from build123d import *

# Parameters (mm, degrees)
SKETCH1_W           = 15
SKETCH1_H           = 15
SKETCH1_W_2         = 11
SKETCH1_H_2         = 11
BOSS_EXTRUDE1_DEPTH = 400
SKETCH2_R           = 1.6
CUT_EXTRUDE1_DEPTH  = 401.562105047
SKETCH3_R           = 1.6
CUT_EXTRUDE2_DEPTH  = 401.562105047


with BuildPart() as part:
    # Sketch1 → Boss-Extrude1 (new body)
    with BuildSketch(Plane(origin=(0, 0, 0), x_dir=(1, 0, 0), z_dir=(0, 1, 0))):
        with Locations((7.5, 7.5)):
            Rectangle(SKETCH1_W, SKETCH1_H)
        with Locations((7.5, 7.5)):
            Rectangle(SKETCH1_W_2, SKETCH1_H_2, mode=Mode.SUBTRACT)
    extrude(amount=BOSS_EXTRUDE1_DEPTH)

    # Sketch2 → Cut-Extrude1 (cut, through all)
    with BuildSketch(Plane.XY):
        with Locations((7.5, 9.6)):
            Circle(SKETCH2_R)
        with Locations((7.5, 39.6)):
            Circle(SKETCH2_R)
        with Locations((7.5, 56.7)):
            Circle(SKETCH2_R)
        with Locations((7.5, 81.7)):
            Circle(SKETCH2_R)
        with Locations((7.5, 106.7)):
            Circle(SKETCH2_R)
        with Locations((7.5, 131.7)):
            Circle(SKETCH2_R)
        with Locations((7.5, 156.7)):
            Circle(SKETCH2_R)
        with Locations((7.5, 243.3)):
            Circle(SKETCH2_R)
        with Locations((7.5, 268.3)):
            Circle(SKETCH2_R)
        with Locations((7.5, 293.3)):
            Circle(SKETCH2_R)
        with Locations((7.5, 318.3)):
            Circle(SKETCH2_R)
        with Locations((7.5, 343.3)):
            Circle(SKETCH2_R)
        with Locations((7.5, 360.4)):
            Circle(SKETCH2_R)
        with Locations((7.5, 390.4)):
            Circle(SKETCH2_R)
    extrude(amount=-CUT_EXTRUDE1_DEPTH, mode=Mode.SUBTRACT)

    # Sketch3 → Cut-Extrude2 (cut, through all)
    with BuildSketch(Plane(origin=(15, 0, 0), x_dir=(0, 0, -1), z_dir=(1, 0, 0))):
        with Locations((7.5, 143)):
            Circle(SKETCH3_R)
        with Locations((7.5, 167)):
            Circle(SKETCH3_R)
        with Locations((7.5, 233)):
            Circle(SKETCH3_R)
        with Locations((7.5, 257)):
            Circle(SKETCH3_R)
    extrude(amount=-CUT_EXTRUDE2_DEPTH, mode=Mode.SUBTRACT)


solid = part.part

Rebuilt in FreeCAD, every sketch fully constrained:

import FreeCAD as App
import Part
import Sketcher
Q = App.Units.Quantity

doc = App.newDocument("Part")
body = doc.addObject("PartDesign::Body", "Body")

# Sketch on XZ plane
sketch1 = doc.addObject("Sketcher::SketchObject", "Sketch")
body.addObject(sketch1)
sketch1.AttachmentSupport = (doc.XZ_Plane, [""])
sketch1.MapMode = "FlatFace"
sketch1.addGeometry(Part.LineSegment(App.Vector(0, -15, 0), App.Vector(0, 0, 0)), False)
sketch1.addGeometry(Part.LineSegment(App.Vector(0, 0, 0), App.Vector(15, 0, 0)), False)
sketch1.addGeometry(Part.LineSegment(App.Vector(15, 0, 0), App.Vector(15, -15, 0)), False)
sketch1.addGeometry(Part.LineSegment(App.Vector(15, -15, 0), App.Vector(0, -15, 0)), False)
sketch1.addGeometry(Part.LineSegment(App.Vector(13, -2, 0), App.Vector(2, -2, 0)), False)
sketch1.addGeometry(Part.LineSegment(App.Vector(2, -2, 0), App.Vector(2, -13, 0)), False)
sketch1.addGeometry(Part.LineSegment(App.Vector(2, -13, 0), App.Vector(13, -13, 0)), False)
sketch1.addGeometry(Part.LineSegment(App.Vector(13, -13, 0), App.Vector(13, -2, 0)), False)
sketch1.addConstraint(Sketcher.Constraint("Coincident", 0, 2, 1, 1))
sketch1.addConstraint(Sketcher.Constraint("Coincident", 1, 2, 2, 1))
sketch1.addConstraint(Sketcher.Constraint("Coincident", 2, 2, 3, 1))
sketch1.addConstraint(Sketcher.Constraint("Coincident", 3, 2, 0, 1))
sketch1.addConstraint(Sketcher.Constraint("Coincident", 4, 2, 5, 1))
sketch1.addConstraint(Sketcher.Constraint("Coincident", 5, 2, 6, 1))
sketch1.addConstraint(Sketcher.Constraint("Coincident", 6, 2, 7, 1))
sketch1.addConstraint(Sketcher.Constraint("Coincident", 7, 2, 4, 1))
sketch1.addConstraint(Sketcher.Constraint("Vertical", 0))
sketch1.addConstraint(Sketcher.Constraint("Horizontal", 1))
sketch1.addConstraint(Sketcher.Constraint("Vertical", 2))
sketch1.addConstraint(Sketcher.Constraint("Horizontal", 3))
sketch1.addConstraint(Sketcher.Constraint("Horizontal", 4))
sketch1.addConstraint(Sketcher.Constraint("Vertical", 5))
sketch1.addConstraint(Sketcher.Constraint("Horizontal", 6))
sketch1.addConstraint(Sketcher.Constraint("Vertical", 7))
sketch1.addConstraint(Sketcher.Constraint("Coincident", 0, 2, -1, 1))
sketch1.addConstraint(Sketcher.Constraint("Equal", 3, 0))
sketch1.addConstraint(Sketcher.Constraint("Equal", 6, 5))
sketch1.addConstraint(Sketcher.Constraint("DistanceX", 1, 1, 1, 2, Q("15 mm")))
sketch1.addConstraint(Sketcher.Constraint("DistanceX", 4, 2, 4, 1, Q("11 mm")))
sketch1.addConstraint(Sketcher.Constraint("DistanceX", -1, 1, 4, 2, Q("2 mm")))
sketch1.addConstraint(Sketcher.Constraint("DistanceY", 4, 2, -1, 1, Q("2 mm")))
pad1 = doc.addObject("PartDesign::Pad", "Pad")
body.addObject(pad1)
pad1.Profile = sketch1
pad1.Length = 400
pad1.Reversed = True

# Sketch on XY plane
sketch2 = doc.addObject("Sketcher::SketchObject", "Sketch001")
body.addObject(sketch2)
sketch2.AttachmentSupport = (doc.XY_Plane, [""])
sketch2.MapMode = "FlatFace"
sketch2.addGeometry(Part.Circle(App.Vector(7.5, 9.6, 0), App.Vector(0, 0, 1), 1.6), False)
sketch2.addGeometry(Part.Circle(App.Vector(7.5, 39.6, 0), App.Vector(0, 0, 1), 1.6), False)
sketch2.addGeometry(Part.Circle(App.Vector(7.5, 56.7, 0), App.Vector(0, 0, 1), 1.6), False)
sketch2.addGeometry(Part.Circle(App.Vector(7.5, 81.7, 0), App.Vector(0, 0, 1), 1.6), False)
sketch2.addGeometry(Part.Circle(App.Vector(7.5, 106.7, 0), App.Vector(0, 0, 1), 1.6), False)
sketch2.addGeometry(Part.Circle(App.Vector(7.5, 131.7, 0), App.Vector(0, 0, 1), 1.6), False)
sketch2.addGeometry(Part.Circle(App.Vector(7.5, 156.7, 0), App.Vector(0, 0, 1), 1.6), False)
sketch2.addGeometry(Part.Circle(App.Vector(7.5, 243.3, 0), App.Vector(0, 0, 1), 1.6), False)
sketch2.addGeometry(Part.Circle(App.Vector(7.5, 268.3, 0), App.Vector(0, 0, 1), 1.6), False)
sketch2.addGeometry(Part.Circle(App.Vector(7.5, 293.3, 0), App.Vector(0, 0, 1), 1.6), False)
sketch2.addGeometry(Part.Circle(App.Vector(7.5, 318.3, 0), App.Vector(0, 0, 1), 1.6), False)
sketch2.addGeometry(Part.Circle(App.Vector(7.5, 343.3, 0), App.Vector(0, 0, 1), 1.6), False)
sketch2.addGeometry(Part.Circle(App.Vector(7.5, 360.4, 0), App.Vector(0, 0, 1), 1.6), False)
sketch2.addGeometry(Part.Circle(App.Vector(7.5, 390.4, 0), App.Vector(0, 0, 1), 1.6), False)
sketch2.addConstraint(Sketcher.Constraint("Equal", 0, 1))
sketch2.addConstraint(Sketcher.Constraint("Equal", 1, 2))
sketch2.addConstraint(Sketcher.Constraint("Equal", 2, 3))
sketch2.addConstraint(Sketcher.Constraint("Equal", 3, 4))
sketch2.addConstraint(Sketcher.Constraint("Equal", 4, 5))
sketch2.addConstraint(Sketcher.Constraint("Equal", 5, 6))
sketch2.addConstraint(Sketcher.Constraint("Equal", 6, 7))
sketch2.addConstraint(Sketcher.Constraint("Equal", 7, 8))
sketch2.addConstraint(Sketcher.Constraint("Equal", 8, 9))
sketch2.addConstraint(Sketcher.Constraint("Equal", 9, 10))
sketch2.addConstraint(Sketcher.Constraint("Equal", 10, 11))
sketch2.addConstraint(Sketcher.Constraint("Equal", 11, 12))
sketch2.addConstraint(Sketcher.Constraint("Equal", 12, 13))
sketch2.addConstraint(Sketcher.Constraint("Vertical", 0, 3, 1, 3))
sketch2.addConstraint(Sketcher.Constraint("Vertical", 1, 3, 2, 3))
sketch2.addConstraint(Sketcher.Constraint("Vertical", 2, 3, 3, 3))
sketch2.addConstraint(Sketcher.Constraint("Vertical", 3, 3, 4, 3))
sketch2.addConstraint(Sketcher.Constraint("Vertical", 4, 3, 5, 3))
sketch2.addConstraint(Sketcher.Constraint("Vertical", 5, 3, 6, 3))
sketch2.addConstraint(Sketcher.Constraint("Vertical", 6, 3, 7, 3))
sketch2.addConstraint(Sketcher.Constraint("Vertical", 7, 3, 8, 3))
sketch2.addConstraint(Sketcher.Constraint("Vertical", 8, 3, 9, 3))
sketch2.addConstraint(Sketcher.Constraint("Vertical", 9, 3, 10, 3))
sketch2.addConstraint(Sketcher.Constraint("Vertical", 10, 3, 11, 3))
sketch2.addConstraint(Sketcher.Constraint("Vertical", 11, 3, 12, 3))
sketch2.addConstraint(Sketcher.Constraint("Vertical", 12, 3, 13, 3))
sketch2.addConstraint(Sketcher.Constraint("Diameter", 0, Q("3.2 mm")))
sketch2.addConstraint(Sketcher.Constraint("DistanceY", 0, 3, 1, 3, Q("30 mm")))
sketch2.addConstraint(Sketcher.Constraint("DistanceY", 2, 3, 3, 3, Q("25 mm")))
sketch2.addConstraint(Sketcher.Constraint("DistanceY", 3, 3, 4, 3, Q("25 mm")))
sketch2.addConstraint(Sketcher.Constraint("DistanceY", 4, 3, 5, 3, Q("25 mm")))
sketch2.addConstraint(Sketcher.Constraint("DistanceY", 5, 3, 6, 3, Q("25 mm")))
sketch2.addConstraint(Sketcher.Constraint("DistanceY", 7, 3, 8, 3, Q("25 mm")))
sketch2.addConstraint(Sketcher.Constraint("DistanceY", 8, 3, 9, 3, Q("25 mm")))
sketch2.addConstraint(Sketcher.Constraint("DistanceY", 9, 3, 10, 3, Q("25 mm")))
sketch2.addConstraint(Sketcher.Constraint("DistanceY", 10, 3, 11, 3, Q("25 mm")))
sketch2.addConstraint(Sketcher.Constraint("DistanceY", 12, 3, 13, 3, Q("30 mm")))
sketch2.addConstraint(Sketcher.Constraint("DistanceX", -1, 1, 0, 3, Q("7.5 mm")))
sketch2.addConstraint(Sketcher.Constraint("DistanceY", -1, 1, 0, 3, Q("9.6 mm")))
sketch2.addConstraint(Sketcher.Constraint("DistanceY", -1, 1, 2, 3, Q("56.7 mm")))
sketch2.addConstraint(Sketcher.Constraint("DistanceY", -1, 1, 7, 3, Q("243.3 mm")))
sketch2.addConstraint(Sketcher.Constraint("DistanceY", -1, 1, 12, 3, Q("360.4 mm")))
pocket1 = doc.addObject("PartDesign::Pocket", "Pocket")
body.addObject(pocket1)
pocket1.Profile = sketch2
pocket1.Type = "ThroughAll"

# Sketch on YZ plane
sketch3 = doc.addObject("Sketcher::SketchObject", "Sketch002")
body.addObject(sketch3)
sketch3.AttachmentSupport = (doc.YZ_Plane, [""])
sketch3.MapMode = "FlatFace"
sketch3.AttachmentOffset = App.Placement(App.Vector(0, 0, 15), App.Rotation())
sketch3.addGeometry(Part.Circle(App.Vector(143, -7.5, 0), App.Vector(0, 0, 1), 1.6), False)
sketch3.addGeometry(Part.Circle(App.Vector(167, -7.5, 0), App.Vector(0, 0, 1), 1.6), False)
sketch3.addGeometry(Part.Circle(App.Vector(233, -7.5, 0), App.Vector(0, 0, 1), 1.6), False)
sketch3.addGeometry(Part.Circle(App.Vector(257, -7.5, 0), App.Vector(0, 0, 1), 1.6), False)
sketch3.addConstraint(Sketcher.Constraint("Equal", 0, 1))
sketch3.addConstraint(Sketcher.Constraint("Equal", 1, 2))
sketch3.addConstraint(Sketcher.Constraint("Equal", 2, 3))
sketch3.addConstraint(Sketcher.Constraint("Horizontal", 0, 3, 1, 3))
sketch3.addConstraint(Sketcher.Constraint("Horizontal", 1, 3, 2, 3))
sketch3.addConstraint(Sketcher.Constraint("Horizontal", 2, 3, 3, 3))
sketch3.addConstraint(Sketcher.Constraint("Diameter", 0, Q("3.2 mm")))
sketch3.addConstraint(Sketcher.Constraint("DistanceX", -1, 1, 0, 3, Q("143 mm")))
sketch3.addConstraint(Sketcher.Constraint("DistanceX", -1, 1, 1, 3, Q("167 mm")))
sketch3.addConstraint(Sketcher.Constraint("DistanceX", -1, 1, 2, 3, Q("233 mm")))
sketch3.addConstraint(Sketcher.Constraint("DistanceX", -1, 1, 3, 3, Q("257 mm")))
sketch3.addConstraint(Sketcher.Constraint("DistanceY", 0, 3, -1, 1, Q("7.5 mm")))
pocket2 = doc.addObject("PartDesign::Pocket", "Pocket001")
body.addObject(pocket2)
pocket2.Profile = sketch3
pocket2.Type = "ThroughAll"

doc.recompute()
